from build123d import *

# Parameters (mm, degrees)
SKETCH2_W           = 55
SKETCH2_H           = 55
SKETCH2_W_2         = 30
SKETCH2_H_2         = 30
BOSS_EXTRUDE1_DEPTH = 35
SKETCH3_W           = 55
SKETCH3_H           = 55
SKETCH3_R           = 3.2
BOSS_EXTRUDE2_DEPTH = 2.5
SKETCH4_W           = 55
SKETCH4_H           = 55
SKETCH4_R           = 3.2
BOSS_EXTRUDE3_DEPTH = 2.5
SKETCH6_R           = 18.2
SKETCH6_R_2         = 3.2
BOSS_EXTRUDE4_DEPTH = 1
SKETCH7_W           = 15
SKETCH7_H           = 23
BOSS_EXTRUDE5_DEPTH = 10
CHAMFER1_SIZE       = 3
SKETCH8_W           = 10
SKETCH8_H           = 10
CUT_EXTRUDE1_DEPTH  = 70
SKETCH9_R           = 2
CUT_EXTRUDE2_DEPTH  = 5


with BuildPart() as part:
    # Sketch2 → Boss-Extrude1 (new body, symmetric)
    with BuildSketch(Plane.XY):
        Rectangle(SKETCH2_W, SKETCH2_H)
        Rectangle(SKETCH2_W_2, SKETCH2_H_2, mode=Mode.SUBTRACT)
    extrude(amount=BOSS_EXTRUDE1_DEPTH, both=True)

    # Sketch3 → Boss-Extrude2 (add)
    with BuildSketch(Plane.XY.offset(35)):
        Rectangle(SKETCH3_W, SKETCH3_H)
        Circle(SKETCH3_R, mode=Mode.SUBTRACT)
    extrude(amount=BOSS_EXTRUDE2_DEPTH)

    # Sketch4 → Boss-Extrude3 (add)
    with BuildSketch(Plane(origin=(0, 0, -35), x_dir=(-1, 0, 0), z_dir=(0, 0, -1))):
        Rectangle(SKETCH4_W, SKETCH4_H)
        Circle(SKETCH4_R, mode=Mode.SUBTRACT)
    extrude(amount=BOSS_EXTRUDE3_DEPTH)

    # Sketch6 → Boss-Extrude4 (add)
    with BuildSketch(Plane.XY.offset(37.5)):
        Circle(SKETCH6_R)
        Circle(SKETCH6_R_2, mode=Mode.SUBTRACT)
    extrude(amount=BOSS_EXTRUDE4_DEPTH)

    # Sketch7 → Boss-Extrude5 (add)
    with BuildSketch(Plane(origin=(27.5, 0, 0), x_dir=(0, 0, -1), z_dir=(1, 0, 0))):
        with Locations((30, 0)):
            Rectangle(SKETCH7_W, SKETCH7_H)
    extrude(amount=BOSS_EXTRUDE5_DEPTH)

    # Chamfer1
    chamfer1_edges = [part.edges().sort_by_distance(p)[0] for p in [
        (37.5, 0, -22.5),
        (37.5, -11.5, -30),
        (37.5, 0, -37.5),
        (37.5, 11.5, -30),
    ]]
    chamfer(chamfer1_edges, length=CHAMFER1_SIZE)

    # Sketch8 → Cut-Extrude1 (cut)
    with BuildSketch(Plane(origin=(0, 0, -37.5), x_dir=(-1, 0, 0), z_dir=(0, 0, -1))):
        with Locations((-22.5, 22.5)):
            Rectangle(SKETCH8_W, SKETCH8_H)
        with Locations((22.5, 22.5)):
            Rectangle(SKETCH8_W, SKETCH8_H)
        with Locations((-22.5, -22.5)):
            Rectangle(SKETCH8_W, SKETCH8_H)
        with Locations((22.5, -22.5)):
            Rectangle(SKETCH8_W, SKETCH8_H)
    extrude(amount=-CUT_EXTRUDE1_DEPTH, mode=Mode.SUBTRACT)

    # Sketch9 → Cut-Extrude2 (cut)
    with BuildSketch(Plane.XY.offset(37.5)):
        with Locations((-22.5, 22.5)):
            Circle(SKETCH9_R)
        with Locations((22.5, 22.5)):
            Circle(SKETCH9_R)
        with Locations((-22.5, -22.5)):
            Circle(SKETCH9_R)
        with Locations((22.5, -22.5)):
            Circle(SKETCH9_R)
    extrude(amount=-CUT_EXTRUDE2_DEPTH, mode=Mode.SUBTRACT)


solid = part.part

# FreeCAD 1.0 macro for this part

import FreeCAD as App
import Part
import Sketcher
Q = App.Units.Quantity


def edges_at(feature, points):
    """Names of the edges that pass closest to the given points."""
    edges = feature.Shape.Edges
    near = lambda p: min(range(len(edges)), key=lambda i: edges[i].distToShape(Part.Vertex(*p))[0])
    return sorted({f"Edge{near(p) + 1}" for p in points})


def add_polygon(sketch, points):
    """Adds a closed chain of lines whose ends are joined by coincident constraints."""
    first, n = sketch.GeometryCount, len(points)
    for a, b in zip(points, points[1:] + points[:1]):
        sketch.addGeometry(Part.LineSegment(App.Vector(*a, 0), App.Vector(*b, 0)), False)
    for i in range(n):
        sketch.addConstraint(Sketcher.Constraint("Coincident", first + i, 2, first + (i + 1) % n, 1))

doc = App.newDocument("Part")
body = doc.addObject("PartDesign::Body", "Body")

sketch1 = body.newObject("Sketcher::SketchObject", "Sketch")
sketch1.AttachmentSupport = (doc.getObject("XY_Plane"), [""])
sketch1.MapMode = "FlatFace"
add_polygon(sketch1, [(-28, 28), (-28, -28), (28, -28), (28, 28)])
add_polygon(sketch1, [(15, -15), (-15, -15), (-15, 15), (15, 15)])
sketch1.addConstraint([
    Sketcher.Constraint("Vertical", 0),
    Sketcher.Constraint("Horizontal", 1),
    Sketcher.Constraint("Vertical", 2),
    Sketcher.Constraint("Horizontal", 3),
    Sketcher.Constraint("Horizontal", 4),
    Sketcher.Constraint("Vertical", 5),
    Sketcher.Constraint("Horizontal", 6),
    Sketcher.Constraint("Vertical", 7),
    Sketcher.Constraint("Symmetric", 0, 2, 2, 2, -1, 1),
    Sketcher.Constraint("Symmetric", 4, 2, 6, 2, -1, 1),
    Sketcher.Constraint("Equal", 3, 0),
    Sketcher.Constraint("Equal", 6, 5),
    Sketcher.Constraint("DistanceX", 1, 1, 1, 2, Q("55 mm")),
    Sketcher.Constraint("DistanceX", 4, 2, 4, 1, Q("30 mm")),
])
pad1 = body.newObject("PartDesign::Pad", "Pad")
pad1.Profile = sketch1
pad1.Length = 70
pad1.Midplane = True

sketch2 = body.newObject("Sketcher::SketchObject", "Sketch001")
sketch2.AttachmentSupport = (doc.getObject("XY_Plane"), [""])
sketch2.MapMode = "FlatFace"
sketch2.AttachmentOffset = App.Placement(App.Vector(0, 0, 35), App.Rotation())
add_polygon(sketch2, [(-27.5, 27.5), (-27.5, -27.5), (27.5, -27.5), (27.5, 27.5)])
sketch2.addGeometry(Part.Circle(App.Vector(0, 0, 0), App.Vector(0, 0, 1), 3.2), False)
sketch2.addConstraint([
    Sketcher.Constraint("Vertical", 0),
    Sketcher.Constraint("Horizontal", 1),
    Sketcher.Constraint("Vertical", 2),
    Sketcher.Constraint("Horizontal", 3),
    Sketcher.Constraint("Coincident", 4, 3, -1, 1),
    Sketcher.Constraint("Symmetric", 0, 2, 2, 2, -1, 1),
    Sketcher.Constraint("Equal", 3, 0),
    Sketcher.Constraint("Diameter", 4, Q("6.4 mm")),
    Sketcher.Constraint("DistanceX", 1, 1, 1, 2, Q("55 mm")),
])
pad2 = body.newObject("PartDesign::Pad", "Pad001")
pad2.Profile = sketch2
pad2.Length = 2.5

sketch3 = body.newObject("Sketcher::SketchObject", "Sketch002")
sketch3.AttachmentSupport = (doc.getObject("XY_Plane"), [""])
sketch3.MapMode = "FlatFace"
sketch3.AttachmentOffset = App.Placement(App.Vector(0, 0, -35), App.Rotation())
add_polygon(sketch3, [(27.5, 27.5), (27.5, -27.5), (-27.5, -27.5), (-27.5, 27.5)])
sketch3.addGeometry(Part.Circle(App.Vector(0, 0, 0), App.Vector(0, 0, 1), 3.2), False)
sketch3.addConstraint([
    Sketcher.Constraint("Vertical", 0),
    Sketcher.Constraint("Horizontal", 1),
    Sketcher.Constraint("Vertical", 2),
    Sketcher.Constraint("Horizontal", 3),
    Sketcher.Constraint("Coincident", 4, 3, -1, 1),
    Sketcher.Constraint("Symmetric", 0, 2, 2, 2, -1, 1),
    Sketcher.Constraint("Equal", 3, 0),
    Sketcher.Constraint("Diameter", 4, Q("6.4 mm")),
    Sketcher.Constraint("DistanceX", 1, 2, 1, 1, Q("55 mm")),
])
pad3 = body.newObject("PartDesign::Pad", "Pad002")
pad3.Profile = sketch3
pad3.Length = 2.5
pad3.Reversed = True

sketch4 = body.newObject("Sketcher::SketchObject", "Sketch003")
sketch4.AttachmentSupport = (doc.getObject("XY_Plane"), [""])
sketch4.MapMode = "FlatFace"
sketch4.AttachmentOffset = App.Placement(App.Vector(0, 0, 37.5), App.Rotation())
sketch4.addGeometry([
    Part.Circle(App.Vector(0, 0, 0), App.Vector(0, 0, 1), 18.2),
    Part.Circle(App.Vector(0, 0, 0), App.Vector(0, 0, 1), 3.2),
], False)
sketch4.addConstraint([
    Sketcher.Constraint("Coincident", 0, 3, -1, 1),
    Sketcher.Constraint("Coincident", 1, 3, -1, 1),
    Sketcher.Constraint("Diameter", 0, Q("36.4 mm")),
    Sketcher.Constraint("Diameter", 1, Q("6.4 mm")),
])
pad4 = body.newObject("PartDesign::Pad", "Pad003")
pad4.Profile = sketch4
pad4.Length = 1

sketch5 = body.newObject("Sketcher::SketchObject", "Sketch004")
sketch5.AttachmentSupport = (doc.getObject("YZ_Plane"), [""])
sketch5.MapMode = "FlatFace"
sketch5.AttachmentOffset = App.Placement(App.Vector(0, 0, 27.5), App.Rotation())
add_polygon(sketch5, [(12, -22), (-12, -22), (-12, -38), (12, -38)])
sketch5.addConstraint([
    Sketcher.Constraint("Horizontal", 0),
    Sketcher.Constraint("Vertical", 1),
    Sketcher.Constraint("Horizontal", 2),
    Sketcher.Constraint("Vertical", 3),
    Sketcher.Constraint("DistanceX", 0, 2, 0, 1, Q("23 mm")),
    Sketcher.Constraint("DistanceY", 1, 2, 1, 1, Q("15 mm")),
    Sketcher.Constraint("DistanceX", 0, 2, -1, 1, Q("11.5 mm")),
    Sketcher.Constraint("DistanceY", 0, 2, -1, 1, Q("22.5 mm")),
])
pad5 = body.newObject("PartDesign::Pad", "Pad004")
pad5.Profile = sketch5
pad5.Length = 10
doc.recompute()

chamfer = body.newObject("PartDesign::Chamfer", "Chamfer")
chamfer.Base = (pad5, edges_at(pad5, [
    (37.5, 0, -22.5),
    (37.5, -11.5, -30),
    (37.5, 0, -37.5),
    (37.5, 11.5, -30),
]))
chamfer.Size = 3

sketch6 = body.newObject("Sketcher::SketchObject", "Sketch005")
sketch6.AttachmentSupport = (doc.getObject("XY_Plane"), [""])
sketch6.MapMode = "FlatFace"
sketch6.AttachmentOffset = App.Placement(App.Vector(0, 0, -37.5), App.Rotation())
add_polygon(sketch6, [(28, 28), (28, 18), (18, 18), (18, 28)])
add_polygon(sketch6, [(-18, 28), (-18, 18), (-28, 18), (-28, 28)])
add_polygon(sketch6, [(28, -18), (28, -28), (18, -28), (18, -18)])
add_polygon(sketch6, [(-18, -18), (-18, -28), (-28, -28), (-28, -18)])
sketch6.addConstraint([
    Sketcher.Constraint("Vertical", 0),
    Sketcher.Constraint("Horizontal", 1),
    Sketcher.Constraint("Vertical", 2),
    Sketcher.Constraint("Horizontal", 3),
    Sketcher.Constraint("Vertical", 4),
    Sketcher.Constraint("Horizontal", 5),
    Sketcher.Constraint("Vertical", 6),
    Sketcher.Constraint("Horizontal", 7),
    Sketcher.Constraint("Vertical", 8),
    Sketcher.Constraint("Horizontal", 9),
    Sketcher.Constraint("Vertical", 10),
    Sketcher.Constraint("Horizontal", 11),
    Sketcher.Constraint("Vertical", 12),
    Sketcher.Constraint("Horizontal", 13),
    Sketcher.Constraint("Vertical", 14),
    Sketcher.Constraint("Horizontal", 15),
    Sketcher.Constraint("Symmetric", 6, 2, 8, 2, -1, 1),
    Sketcher.Constraint("Symmetric", 4, 2, 10, 2, -1, 1),
    Sketcher.Constraint("Symmetric", 2, 2, 12, 2, -1, 1),
    Sketcher.Constraint("Symmetric", 0, 2, 14, 2, -1, 1),
    Sketcher.Constraint("Symmetric", 1, 2, 4, 2, -2),
    Sketcher.Constraint("Symmetric", 3, 2, 6, 2, -2),
    Sketcher.Constraint("Equal", 15, 0),
    Sketcher.Constraint("DistanceX", 1, 2, 1, 1, Q("10 mm")),
    Sketcher.Constraint("DistanceX", 4, 2, 1, 2, Q("35 mm")),
    Sketcher.Constraint("DistanceY", 8, 2, 0, 2, Q("45 mm")),
])
pocket1 = body.newObject("PartDesign::Pocket", "Pocket")
pocket1.Profile = sketch6
pocket1.Length = 70
pocket1.Reversed = True

sketch7 = body.newObject("Sketcher::SketchObject", "Sketch006")
sketch7.AttachmentSupport = (doc.getObject("XY_Plane"), [""])
sketch7.MapMode = "FlatFace"
sketch7.AttachmentOffset = App.Placement(App.Vector(0, 0, 37.5), App.Rotation())
sketch7.addGeometry([
    Part.Circle(App.Vector(-22.5, 22.5, 0), App.Vector(0, 0, 1), 2),
    Part.Circle(App.Vector(22.5, 22.5, 0), App.Vector(0, 0, 1), 2),
    Part.Circle(App.Vector(-22.5, -22.5, 0), App.Vector(0, 0, 1), 2),
    Part.Circle(App.Vector(22.5, -22.5, 0), App.Vector(0, 0, 1), 2),
], False)
sketch7.addConstraint([
    Sketcher.Constraint("Equal", 0, 1),
    Sketcher.Constraint("Equal", 1, 2),
    Sketcher.Constraint("Equal", 2, 3),
    Sketcher.Constraint("Symmetric", 1, 3, 2, 3, -1, 1),
    Sketcher.Constraint("Symmetric", 0, 3, 3, 3, -1, 1),
    Sketcher.Constraint("Symmetric", 0, 3, 1, 3, -2),
    Sketcher.Constraint("Diameter", 0, Q("4 mm")),
    Sketcher.Constraint("DistanceX", 0, 3, 1, 3, Q("45 mm")),
    Sketcher.Constraint("DistanceY", 2, 3, 0, 3, Q("45 mm")),
])
pocket2 = body.newObject("PartDesign::Pocket", "Pocket001")
pocket2.Profile = sketch7
pocket2.Length = 5

doc.recompute()
